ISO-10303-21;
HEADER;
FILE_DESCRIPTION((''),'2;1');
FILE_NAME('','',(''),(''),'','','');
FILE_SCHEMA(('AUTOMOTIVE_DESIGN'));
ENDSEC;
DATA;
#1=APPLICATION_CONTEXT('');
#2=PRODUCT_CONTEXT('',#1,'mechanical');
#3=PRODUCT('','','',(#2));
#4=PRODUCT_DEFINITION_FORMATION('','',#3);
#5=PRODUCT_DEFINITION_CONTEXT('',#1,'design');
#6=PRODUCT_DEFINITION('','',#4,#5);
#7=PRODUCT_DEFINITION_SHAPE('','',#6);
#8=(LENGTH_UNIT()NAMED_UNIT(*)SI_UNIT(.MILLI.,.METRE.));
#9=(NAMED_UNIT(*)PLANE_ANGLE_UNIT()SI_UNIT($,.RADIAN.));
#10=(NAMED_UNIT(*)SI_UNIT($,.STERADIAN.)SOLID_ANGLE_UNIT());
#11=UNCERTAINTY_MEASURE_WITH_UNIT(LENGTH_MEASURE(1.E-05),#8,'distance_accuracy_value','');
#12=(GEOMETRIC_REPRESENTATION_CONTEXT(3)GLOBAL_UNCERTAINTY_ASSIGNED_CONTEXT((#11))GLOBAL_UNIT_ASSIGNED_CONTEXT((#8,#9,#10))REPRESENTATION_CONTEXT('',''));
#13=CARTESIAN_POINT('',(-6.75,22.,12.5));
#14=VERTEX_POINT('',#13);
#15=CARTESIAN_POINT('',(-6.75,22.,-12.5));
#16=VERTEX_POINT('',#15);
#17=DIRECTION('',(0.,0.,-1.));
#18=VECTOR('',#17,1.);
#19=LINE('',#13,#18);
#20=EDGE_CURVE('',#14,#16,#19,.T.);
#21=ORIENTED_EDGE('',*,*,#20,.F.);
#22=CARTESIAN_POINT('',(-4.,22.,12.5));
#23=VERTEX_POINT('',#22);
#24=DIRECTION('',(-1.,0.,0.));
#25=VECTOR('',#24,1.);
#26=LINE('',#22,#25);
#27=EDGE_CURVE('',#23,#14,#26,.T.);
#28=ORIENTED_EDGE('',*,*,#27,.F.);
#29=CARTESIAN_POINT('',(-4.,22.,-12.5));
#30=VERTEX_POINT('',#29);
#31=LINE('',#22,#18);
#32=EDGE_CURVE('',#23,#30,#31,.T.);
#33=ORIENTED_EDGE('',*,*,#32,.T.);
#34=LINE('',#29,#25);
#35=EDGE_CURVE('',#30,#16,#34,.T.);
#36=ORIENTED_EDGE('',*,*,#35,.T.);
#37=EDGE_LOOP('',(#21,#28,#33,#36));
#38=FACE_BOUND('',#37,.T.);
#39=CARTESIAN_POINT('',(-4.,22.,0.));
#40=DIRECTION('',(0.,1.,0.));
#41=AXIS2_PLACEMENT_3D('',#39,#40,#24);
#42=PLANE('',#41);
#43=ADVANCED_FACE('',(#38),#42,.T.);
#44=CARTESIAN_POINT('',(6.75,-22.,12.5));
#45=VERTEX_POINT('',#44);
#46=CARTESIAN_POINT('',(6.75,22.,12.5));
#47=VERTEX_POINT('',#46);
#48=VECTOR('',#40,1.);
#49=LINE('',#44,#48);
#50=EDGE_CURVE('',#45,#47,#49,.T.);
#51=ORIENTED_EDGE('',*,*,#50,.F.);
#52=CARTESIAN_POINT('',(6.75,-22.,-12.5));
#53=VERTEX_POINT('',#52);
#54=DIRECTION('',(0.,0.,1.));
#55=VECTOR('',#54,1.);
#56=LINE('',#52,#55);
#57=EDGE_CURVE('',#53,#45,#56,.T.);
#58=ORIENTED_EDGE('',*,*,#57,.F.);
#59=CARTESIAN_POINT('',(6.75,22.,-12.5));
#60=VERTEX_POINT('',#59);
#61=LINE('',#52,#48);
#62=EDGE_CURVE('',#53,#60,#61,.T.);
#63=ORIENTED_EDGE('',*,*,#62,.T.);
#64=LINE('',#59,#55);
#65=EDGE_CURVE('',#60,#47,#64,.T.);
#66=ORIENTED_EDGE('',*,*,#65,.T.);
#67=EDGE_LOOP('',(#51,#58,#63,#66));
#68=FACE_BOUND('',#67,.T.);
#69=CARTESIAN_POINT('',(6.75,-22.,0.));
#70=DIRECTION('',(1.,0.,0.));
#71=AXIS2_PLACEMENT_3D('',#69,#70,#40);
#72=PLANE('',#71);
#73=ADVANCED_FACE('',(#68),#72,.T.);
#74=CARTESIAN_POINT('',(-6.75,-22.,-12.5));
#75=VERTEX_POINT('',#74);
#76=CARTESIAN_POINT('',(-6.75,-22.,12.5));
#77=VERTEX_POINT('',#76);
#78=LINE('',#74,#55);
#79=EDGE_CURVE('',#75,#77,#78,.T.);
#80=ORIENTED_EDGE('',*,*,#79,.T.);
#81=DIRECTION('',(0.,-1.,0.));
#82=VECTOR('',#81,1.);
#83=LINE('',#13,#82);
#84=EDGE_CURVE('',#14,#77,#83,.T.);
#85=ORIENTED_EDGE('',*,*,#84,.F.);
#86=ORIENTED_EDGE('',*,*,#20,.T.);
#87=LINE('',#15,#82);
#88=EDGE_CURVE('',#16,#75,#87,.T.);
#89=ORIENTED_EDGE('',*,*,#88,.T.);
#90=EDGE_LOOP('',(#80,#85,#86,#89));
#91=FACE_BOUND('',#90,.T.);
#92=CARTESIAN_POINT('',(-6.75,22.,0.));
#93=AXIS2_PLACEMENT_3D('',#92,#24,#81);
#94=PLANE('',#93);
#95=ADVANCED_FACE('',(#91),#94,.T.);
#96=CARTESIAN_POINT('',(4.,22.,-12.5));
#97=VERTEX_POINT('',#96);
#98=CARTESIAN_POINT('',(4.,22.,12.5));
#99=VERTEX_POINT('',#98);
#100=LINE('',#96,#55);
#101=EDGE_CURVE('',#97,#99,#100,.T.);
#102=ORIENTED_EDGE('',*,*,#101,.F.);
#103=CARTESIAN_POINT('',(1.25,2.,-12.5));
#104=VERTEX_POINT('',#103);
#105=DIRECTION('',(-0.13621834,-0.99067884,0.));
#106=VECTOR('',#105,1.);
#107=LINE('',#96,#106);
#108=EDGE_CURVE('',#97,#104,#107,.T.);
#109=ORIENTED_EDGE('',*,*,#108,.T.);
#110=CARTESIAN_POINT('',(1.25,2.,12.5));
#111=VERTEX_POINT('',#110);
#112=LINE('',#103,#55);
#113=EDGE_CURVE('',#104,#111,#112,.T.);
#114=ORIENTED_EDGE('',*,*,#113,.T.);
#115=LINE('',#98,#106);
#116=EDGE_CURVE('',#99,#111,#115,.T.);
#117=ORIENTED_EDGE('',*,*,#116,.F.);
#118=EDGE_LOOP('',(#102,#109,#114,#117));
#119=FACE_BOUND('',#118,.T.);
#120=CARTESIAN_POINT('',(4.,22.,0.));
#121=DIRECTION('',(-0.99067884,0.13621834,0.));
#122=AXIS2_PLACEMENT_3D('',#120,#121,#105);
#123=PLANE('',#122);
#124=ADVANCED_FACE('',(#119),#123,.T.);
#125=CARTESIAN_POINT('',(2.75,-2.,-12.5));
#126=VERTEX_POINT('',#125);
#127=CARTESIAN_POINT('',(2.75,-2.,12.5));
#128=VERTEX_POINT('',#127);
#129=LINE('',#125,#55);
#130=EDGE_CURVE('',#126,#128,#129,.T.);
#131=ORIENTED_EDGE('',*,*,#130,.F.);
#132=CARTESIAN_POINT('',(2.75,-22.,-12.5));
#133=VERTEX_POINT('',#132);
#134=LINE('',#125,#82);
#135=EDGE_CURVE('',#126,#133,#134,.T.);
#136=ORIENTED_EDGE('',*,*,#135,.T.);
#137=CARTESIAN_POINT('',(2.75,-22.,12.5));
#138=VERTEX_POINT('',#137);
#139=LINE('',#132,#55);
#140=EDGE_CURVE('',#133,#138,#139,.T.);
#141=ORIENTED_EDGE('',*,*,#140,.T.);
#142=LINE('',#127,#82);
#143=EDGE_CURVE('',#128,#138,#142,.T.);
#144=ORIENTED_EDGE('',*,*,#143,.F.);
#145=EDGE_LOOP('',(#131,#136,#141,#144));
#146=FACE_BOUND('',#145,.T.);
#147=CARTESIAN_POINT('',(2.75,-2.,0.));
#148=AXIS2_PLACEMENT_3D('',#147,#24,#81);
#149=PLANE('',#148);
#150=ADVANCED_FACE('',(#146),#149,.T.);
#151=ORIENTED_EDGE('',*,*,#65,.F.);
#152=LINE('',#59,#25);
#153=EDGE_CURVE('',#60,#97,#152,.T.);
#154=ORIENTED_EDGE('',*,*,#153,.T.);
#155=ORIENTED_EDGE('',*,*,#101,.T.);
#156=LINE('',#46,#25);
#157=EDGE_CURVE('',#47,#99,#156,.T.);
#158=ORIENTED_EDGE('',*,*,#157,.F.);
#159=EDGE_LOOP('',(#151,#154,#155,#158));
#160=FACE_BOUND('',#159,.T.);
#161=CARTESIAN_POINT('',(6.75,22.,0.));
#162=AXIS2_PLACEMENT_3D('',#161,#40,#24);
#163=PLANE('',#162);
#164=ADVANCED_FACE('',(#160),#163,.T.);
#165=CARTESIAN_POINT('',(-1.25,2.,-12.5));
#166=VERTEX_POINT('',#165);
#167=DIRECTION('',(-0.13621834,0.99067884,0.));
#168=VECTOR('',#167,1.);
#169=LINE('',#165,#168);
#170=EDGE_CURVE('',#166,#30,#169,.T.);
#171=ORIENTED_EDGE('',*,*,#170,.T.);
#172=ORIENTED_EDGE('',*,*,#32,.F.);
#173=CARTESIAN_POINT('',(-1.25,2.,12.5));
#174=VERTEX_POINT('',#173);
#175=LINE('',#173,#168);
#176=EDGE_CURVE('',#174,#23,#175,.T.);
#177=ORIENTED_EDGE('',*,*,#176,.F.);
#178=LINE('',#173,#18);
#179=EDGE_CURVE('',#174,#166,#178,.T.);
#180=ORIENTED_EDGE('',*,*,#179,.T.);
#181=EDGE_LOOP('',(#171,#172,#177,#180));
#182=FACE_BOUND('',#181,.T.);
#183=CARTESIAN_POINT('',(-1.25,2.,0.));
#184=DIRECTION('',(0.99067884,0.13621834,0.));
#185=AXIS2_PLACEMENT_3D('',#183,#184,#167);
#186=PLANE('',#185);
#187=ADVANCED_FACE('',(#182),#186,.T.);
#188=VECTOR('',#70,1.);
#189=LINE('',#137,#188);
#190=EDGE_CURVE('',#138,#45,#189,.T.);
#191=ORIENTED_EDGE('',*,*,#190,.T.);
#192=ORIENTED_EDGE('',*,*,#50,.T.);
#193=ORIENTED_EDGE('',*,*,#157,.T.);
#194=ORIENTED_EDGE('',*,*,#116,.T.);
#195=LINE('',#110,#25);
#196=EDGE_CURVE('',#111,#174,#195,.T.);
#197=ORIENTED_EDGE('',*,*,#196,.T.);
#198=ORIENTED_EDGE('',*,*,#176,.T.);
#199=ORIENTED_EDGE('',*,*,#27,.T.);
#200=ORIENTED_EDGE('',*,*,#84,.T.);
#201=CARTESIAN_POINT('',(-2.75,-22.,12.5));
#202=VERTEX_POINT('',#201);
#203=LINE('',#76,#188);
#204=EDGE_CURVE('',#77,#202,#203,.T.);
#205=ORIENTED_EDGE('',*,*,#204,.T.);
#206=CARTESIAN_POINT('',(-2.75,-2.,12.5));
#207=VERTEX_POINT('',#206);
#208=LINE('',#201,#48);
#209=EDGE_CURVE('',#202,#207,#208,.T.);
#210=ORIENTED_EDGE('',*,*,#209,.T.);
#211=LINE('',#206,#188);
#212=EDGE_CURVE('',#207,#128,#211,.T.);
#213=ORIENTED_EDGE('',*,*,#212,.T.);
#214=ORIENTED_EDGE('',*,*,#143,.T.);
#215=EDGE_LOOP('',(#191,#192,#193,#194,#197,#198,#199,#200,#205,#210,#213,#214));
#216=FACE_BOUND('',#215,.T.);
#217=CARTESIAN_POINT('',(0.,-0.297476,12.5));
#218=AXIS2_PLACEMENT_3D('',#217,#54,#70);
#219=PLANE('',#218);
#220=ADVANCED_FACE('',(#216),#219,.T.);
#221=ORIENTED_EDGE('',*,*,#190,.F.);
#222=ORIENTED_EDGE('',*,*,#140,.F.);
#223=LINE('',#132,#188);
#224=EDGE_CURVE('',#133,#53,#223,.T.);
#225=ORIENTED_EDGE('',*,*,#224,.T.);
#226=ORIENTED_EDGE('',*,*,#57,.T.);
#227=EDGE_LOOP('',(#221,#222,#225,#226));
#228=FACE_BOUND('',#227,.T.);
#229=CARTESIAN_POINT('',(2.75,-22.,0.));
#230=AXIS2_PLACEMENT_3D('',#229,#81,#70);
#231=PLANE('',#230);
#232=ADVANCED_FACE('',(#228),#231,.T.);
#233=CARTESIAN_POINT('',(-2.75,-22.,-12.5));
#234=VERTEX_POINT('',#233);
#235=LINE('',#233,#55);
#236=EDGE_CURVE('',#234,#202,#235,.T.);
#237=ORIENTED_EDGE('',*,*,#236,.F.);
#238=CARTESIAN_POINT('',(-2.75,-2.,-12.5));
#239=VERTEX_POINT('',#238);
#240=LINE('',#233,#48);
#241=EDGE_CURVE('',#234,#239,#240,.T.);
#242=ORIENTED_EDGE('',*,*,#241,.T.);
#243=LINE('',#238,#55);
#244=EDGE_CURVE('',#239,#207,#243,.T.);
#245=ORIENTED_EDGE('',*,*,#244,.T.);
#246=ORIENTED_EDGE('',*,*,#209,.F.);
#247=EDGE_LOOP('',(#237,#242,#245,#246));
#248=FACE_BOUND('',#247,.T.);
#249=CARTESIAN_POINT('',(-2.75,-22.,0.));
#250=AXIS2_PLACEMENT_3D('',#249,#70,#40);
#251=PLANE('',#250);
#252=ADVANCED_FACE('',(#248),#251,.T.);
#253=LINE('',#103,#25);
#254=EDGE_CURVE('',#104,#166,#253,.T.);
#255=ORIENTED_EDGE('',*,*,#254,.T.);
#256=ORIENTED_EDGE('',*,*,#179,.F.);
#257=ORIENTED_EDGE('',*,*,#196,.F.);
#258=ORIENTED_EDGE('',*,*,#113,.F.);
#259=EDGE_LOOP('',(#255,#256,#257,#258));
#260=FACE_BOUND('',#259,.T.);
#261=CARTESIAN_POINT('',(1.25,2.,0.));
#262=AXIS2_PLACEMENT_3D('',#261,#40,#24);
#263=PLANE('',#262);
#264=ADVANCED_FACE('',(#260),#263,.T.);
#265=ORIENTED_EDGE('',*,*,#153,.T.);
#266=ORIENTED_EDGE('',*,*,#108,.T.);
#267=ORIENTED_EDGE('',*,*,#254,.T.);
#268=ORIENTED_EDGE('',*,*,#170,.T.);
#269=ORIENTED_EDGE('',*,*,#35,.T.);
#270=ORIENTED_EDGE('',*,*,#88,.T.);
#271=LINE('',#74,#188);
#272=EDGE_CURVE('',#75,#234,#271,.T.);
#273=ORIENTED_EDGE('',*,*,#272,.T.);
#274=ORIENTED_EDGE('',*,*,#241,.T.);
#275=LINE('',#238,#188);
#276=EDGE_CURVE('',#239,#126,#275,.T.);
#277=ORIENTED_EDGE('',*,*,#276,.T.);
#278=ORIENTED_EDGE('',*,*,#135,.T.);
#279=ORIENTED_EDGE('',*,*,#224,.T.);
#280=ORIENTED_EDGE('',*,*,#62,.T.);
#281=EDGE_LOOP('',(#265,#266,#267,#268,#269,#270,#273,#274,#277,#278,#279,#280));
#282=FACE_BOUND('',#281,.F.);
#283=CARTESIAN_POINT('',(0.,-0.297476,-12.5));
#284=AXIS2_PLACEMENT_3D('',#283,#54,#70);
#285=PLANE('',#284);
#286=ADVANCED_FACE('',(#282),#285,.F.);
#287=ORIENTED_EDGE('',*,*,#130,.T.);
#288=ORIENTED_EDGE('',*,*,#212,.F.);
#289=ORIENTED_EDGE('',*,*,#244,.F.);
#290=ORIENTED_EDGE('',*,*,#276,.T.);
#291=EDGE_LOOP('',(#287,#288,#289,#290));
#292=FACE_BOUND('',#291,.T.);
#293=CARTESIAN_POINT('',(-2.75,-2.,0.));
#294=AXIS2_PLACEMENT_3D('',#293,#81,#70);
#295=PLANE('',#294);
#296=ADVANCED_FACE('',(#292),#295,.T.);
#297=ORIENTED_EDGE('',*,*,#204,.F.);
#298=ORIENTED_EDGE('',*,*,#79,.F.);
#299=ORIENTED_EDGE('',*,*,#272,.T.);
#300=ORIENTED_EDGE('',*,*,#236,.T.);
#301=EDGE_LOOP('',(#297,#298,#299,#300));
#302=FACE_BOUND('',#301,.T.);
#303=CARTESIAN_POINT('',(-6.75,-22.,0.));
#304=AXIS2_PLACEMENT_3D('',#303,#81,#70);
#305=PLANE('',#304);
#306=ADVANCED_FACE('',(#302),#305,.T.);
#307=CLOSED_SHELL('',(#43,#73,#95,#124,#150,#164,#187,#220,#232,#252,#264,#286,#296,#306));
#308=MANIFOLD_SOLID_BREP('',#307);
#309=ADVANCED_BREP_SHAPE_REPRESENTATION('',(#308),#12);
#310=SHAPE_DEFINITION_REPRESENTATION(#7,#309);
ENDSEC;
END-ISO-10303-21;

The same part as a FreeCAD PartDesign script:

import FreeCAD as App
import Part
import Sketcher
from FreeCAD import Vector
Q = App.Units.Quantity

doc = App.newDocument("Part")
body = doc.addObject("PartDesign::Body", "Body")

sketch1 = body.newObject("Sketcher::SketchObject", "Sketch")
sketch1.AttachmentSupport = (doc.getObject("XY_Plane"), [""])
sketch1.MapMode = "FlatFace"
sketch1.addGeometry(Part.LineSegment(Vector(-6.8, 22, 0), Vector(-6.8, -22, 0)), False)
sketch1.addGeometry(Part.LineSegment(Vector(-6.8, -22, 0), Vector(-2.8, -22, 0)), False)
sketch1.addGeometry(Part.LineSegment(Vector(-2.8, -22, 0), Vector(-2.8, -2, 0)), False)
sketch1.addGeometry(Part.LineSegment(Vector(-2.8, -2, 0), Vector(2.8, -2, 0)), False)
sketch1.addGeometry(Part.LineSegment(Vector(2.8, -2, 0), Vector(2.8, -22, 0)), False)
sketch1.addGeometry(Part.LineSegment(Vector(2.8, -22, 0), Vector(6.8, -22, 0)), False)
sketch1.addGeometry(Part.LineSegment(Vector(6.8, -22, 0), Vector(6.8, 22, 0)), False)
sketch1.addGeometry(Part.LineSegment(Vector(6.8, 22, 0), Vector(4, 22, 0)), False)
sketch1.addGeometry(Part.LineSegment(Vector(4, 22, 0), Vector(1.2, 2, 0)), False)
sketch1.addGeometry(Part.LineSegment(Vector(1.2, 2, 0), Vector(-1.2, 2, 0)), False)
sketch1.addGeometry(Part.LineSegment(Vector(-1.2, 2, 0), Vector(-4, 22, 0)), False)
sketch1.addGeometry(Part.LineSegment(Vector(-4, 22, 0), Vector(-6.8, 22, 0)), False)
sketch1.addConstraint(Sketcher.Constraint("Coincident", 0, 2, 1, 1))
sketch1.addConstraint(Sketcher.Constraint("Coincident", 1, 2, 2, 1))
sketch1.addConstraint(Sketcher.Constraint("Coincident", 2, 2, 3, 1))
sketch1.addConstraint(Sketcher.Constraint("Coincident", 3, 2, 4, 1))
sketch1.addConstraint(Sketcher.Constraint("Coincident", 4, 2, 5, 1))
sketch1.addConstraint(Sketcher.Constraint("Coincident", 5, 2, 6, 1))
sketch1.addConstraint(Sketcher.Constraint("Coincident", 6, 2, 7, 1))
sketch1.addConstraint(Sketcher.Constraint("Coincident", 7, 2, 8, 1))
sketch1.addConstraint(Sketcher.Constraint("Coincident", 8, 2, 9, 1))
sketch1.addConstraint(Sketcher.Constraint("Coincident", 9, 2, 10, 1))
sketch1.addConstraint(Sketcher.Constraint("Coincident", 10, 2, 11, 1))
sketch1.addConstraint(Sketcher.Constraint("Coincident", 11, 2, 0, 1))
sketch1.addConstraint(Sketcher.Constraint("Vertical", 0))
sketch1.addConstraint(Sketcher.Constraint("Horizontal", 1))
sketch1.addConstraint(Sketcher.Constraint("Vertical", 2))
sketch1.addConstraint(Sketcher.Constraint("Horizontal", 3))
sketch1.addConstraint(Sketcher.Constraint("Vertical", 4))
sketch1.addConstraint(Sketcher.Constraint("Horizontal", 5))
sketch1.addConstraint(Sketcher.Constraint("Vertical", 6))
sketch1.addConstraint(Sketcher.Constraint("Horizontal", 7))
sketch1.addConstraint(Sketcher.Constraint("Horizontal", 9))
sketch1.addConstraint(Sketcher.Constraint("Horizontal", 11))
sketch1.addConstraint(Sketcher.Constraint("Symmetric", 0, 2, 6, 2, -1, 1))
sketch1.addConstraint(Sketcher.Constraint("Symmetric", 1, 2, 4, 2, -2))
sketch1.addConstraint(Sketcher.Constraint("Symmetric", 7, 2, 10, 2, -2))
sketch1.addConstraint(Sketcher.Constraint("Equal", 8, 10))
sketch1.addConstraint(Sketcher.Constraint("DistanceX", 1, 1, 1, 2, Q("4 mm")))
sketch1.addConstraint(Sketcher.Constraint("DistanceY", 0, 2, 0, 1, Q("44 mm")))
sketch1.addConstraint(Sketcher.Constraint("DistanceY", 2, 1, 2, 2, Q("20 mm")))
sketch1.addConstraint(Sketcher.Constraint("DistanceX", 3, 1, 3, 2, Q("5.5 mm")))
sketch1.addConstraint(Sketcher.Constraint("DistanceX", 9, 2, 9, 1, Q("2.5 mm")))
sketch1.addConstraint(Sketcher.Constraint("DistanceX", -1, 1, 7, 2, Q("4 mm")))
sketch1.addConstraint(Sketcher.Constraint("DistanceY", -1, 1, 8, 2, Q("2 mm")))
pad1 = body.newObject("PartDesign::Pad", "Pad")
pad1.Profile = sketch1
pad1.Length = 25
pad1.Midplane = True

doc.recompute()
